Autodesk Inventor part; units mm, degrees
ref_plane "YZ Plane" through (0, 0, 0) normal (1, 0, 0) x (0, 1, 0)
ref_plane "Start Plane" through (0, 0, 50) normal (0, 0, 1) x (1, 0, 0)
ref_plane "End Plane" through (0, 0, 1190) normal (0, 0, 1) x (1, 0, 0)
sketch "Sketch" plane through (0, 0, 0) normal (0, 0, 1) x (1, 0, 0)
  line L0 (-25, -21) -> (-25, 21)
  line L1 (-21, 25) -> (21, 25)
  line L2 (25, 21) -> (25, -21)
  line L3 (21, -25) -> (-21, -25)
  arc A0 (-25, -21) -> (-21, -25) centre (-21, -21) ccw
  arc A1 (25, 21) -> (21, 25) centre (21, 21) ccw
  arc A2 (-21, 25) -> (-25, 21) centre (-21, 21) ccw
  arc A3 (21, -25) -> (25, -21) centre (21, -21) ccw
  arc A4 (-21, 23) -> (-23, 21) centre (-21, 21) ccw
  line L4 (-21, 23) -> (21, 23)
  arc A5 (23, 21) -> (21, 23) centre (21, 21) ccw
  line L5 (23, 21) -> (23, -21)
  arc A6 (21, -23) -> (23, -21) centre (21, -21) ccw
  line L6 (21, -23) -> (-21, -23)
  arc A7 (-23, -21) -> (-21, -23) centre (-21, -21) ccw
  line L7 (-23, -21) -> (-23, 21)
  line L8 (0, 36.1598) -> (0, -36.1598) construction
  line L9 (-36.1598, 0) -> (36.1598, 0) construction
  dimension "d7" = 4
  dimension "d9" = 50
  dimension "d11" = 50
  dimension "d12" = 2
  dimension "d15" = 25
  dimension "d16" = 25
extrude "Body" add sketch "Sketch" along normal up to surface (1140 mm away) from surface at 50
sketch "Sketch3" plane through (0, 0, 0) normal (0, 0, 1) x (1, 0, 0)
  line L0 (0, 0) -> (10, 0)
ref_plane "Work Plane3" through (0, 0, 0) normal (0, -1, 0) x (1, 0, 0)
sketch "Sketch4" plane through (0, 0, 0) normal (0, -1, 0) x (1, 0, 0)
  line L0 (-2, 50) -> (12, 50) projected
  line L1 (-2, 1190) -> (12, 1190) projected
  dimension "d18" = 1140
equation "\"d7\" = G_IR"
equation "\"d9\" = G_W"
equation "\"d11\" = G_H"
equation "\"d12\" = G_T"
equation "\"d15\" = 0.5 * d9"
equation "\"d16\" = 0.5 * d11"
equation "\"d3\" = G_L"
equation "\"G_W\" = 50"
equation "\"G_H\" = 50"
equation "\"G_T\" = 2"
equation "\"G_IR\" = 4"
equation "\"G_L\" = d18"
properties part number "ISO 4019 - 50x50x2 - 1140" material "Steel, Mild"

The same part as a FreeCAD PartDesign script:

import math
import FreeCAD as App
import Part
import Sketcher
Q = App.Units.Quantity

doc = App.newDocument("Part")
params = doc.addObject("Spreadsheet::Sheet", "Params")
for row, (alias, value) in enumerate([
    ("sketch1_radius", "4 mm"),
    ("sketch1_radius2", "2 mm"),
    ("pad1_length", "1140 mm"),
], start=1):
    params.set(f"A{row}", alias)
    params.set(f"B{row}", "=" + value)
    params.setAlias(f"B{row}", alias)

body = doc.addObject("PartDesign::Body", "Body")

sketch1 = body.newObject("Sketcher::SketchObject", "Sketch")
sketch1.AttachmentSupport = (doc.getObject("XY_Plane"), [""])
sketch1.MapMode = "FlatFace"
sketch1.AttachmentOffset = App.Placement(App.Vector(0, 0, 50), App.Rotation())
sketch1.addGeometry([
    Part.LineSegment(App.Vector(-25, 21, 0), App.Vector(-25, -21, 0)),
    Part.ArcOfCircle(Part.Circle(App.Vector(-21, -21, 0), App.Vector(0, 0, 1), 4), math.radians(180), math.radians(270)),
    Part.LineSegment(App.Vector(-21, -25, 0), App.Vector(21, -25, 0)),
    Part.ArcOfCircle(Part.Circle(App.Vector(21, -21, 0), App.Vector(0, 0, 1), 4), math.radians(-90), math.radians(0)),
    Part.LineSegment(App.Vector(25, -21, 0), App.Vector(25, 21, 0)),
    Part.ArcOfCircle(Part.Circle(App.Vector(21, 21, 0), App.Vector(0, 0, 1), 4), math.radians(0), math.radians(90)),
    Part.LineSegment(App.Vector(21, 25, 0), App.Vector(-21, 25, 0)),
    Part.ArcOfCircle(Part.Circle(App.Vector(-21, 21, 0), App.Vector(0, 0, 1), 4), math.radians(90), math.radians(180)),
    Part.ArcOfCircle(Part.Circle(App.Vector(-21, 21, 0), App.Vector(0, 0, 1), 2), math.radians(90), math.radians(180)),
    Part.LineSegment(App.Vector(-21, 23, 0), App.Vector(21, 23, 0)),
    Part.ArcOfCircle(Part.Circle(App.Vector(21, 21, 0), App.Vector(0, 0, 1), 2), math.radians(0), math.radians(90)),
    Part.LineSegment(App.Vector(23, 21, 0), App.Vector(23, -21, 0)),
    Part.ArcOfCircle(Part.Circle(App.Vector(21, -21, 0), App.Vector(0, 0, 1), 2), math.radians(-90), math.radians(0)),
    Part.LineSegment(App.Vector(21, -23, 0), App.Vector(-21, -23, 0)),
    Part.ArcOfCircle(Part.Circle(App.Vector(-21, -21, 0), App.Vector(0, 0, 1), 2), math.radians(180), math.radians(270)),
    Part.LineSegment(App.Vector(-23, -21, 0), App.Vector(-23, 21, 0)),
], False)
sketch1.addConstraint([
    Sketcher.Constraint("Tangent", 0, 2, 1, 1),
    Sketcher.Constraint("Tangent", 1, 2, 2, 1),
    Sketcher.Constraint("Tangent", 2, 2, 3, 1),
    Sketcher.Constraint("Tangent", 3, 2, 4, 1),
    Sketcher.Constraint("Tangent", 4, 2, 5, 1),
    Sketcher.Constraint("Tangent", 5, 2, 6, 1),
    Sketcher.Constraint("Tangent", 6, 2, 7, 1),
    Sketcher.Constraint("Tangent", 7, 2, 0, 1),
    Sketcher.Constraint("Tangent", 8, 1, 9, 1),
    Sketcher.Constraint("Tangent", 9, 2, 10, 2),
    Sketcher.Constraint("Tangent", 10, 1, 11, 1),
    Sketcher.Constraint("Tangent", 11, 2, 12, 2),
    Sketcher.Constraint("Tangent", 12, 1, 13, 1),
    Sketcher.Constraint("Tangent", 13, 2, 14, 2),
    Sketcher.Constraint("Tangent", 14, 1, 15, 1),
    Sketcher.Constraint("Tangent", 15, 2, 8, 2),
    Sketcher.Constraint("Vertical", 0),
    Sketcher.Constraint("Horizontal", 2),
    Sketcher.Constraint("Vertical", 4),
    Sketcher.Constraint("Horizontal", 6),
    Sketcher.Constraint("Horizontal", 9),
    Sketcher.Constraint("Vertical", 11),
    Sketcher.Constraint("Horizontal", 13),
    Sketcher.Constraint("Vertical", 15),
    Sketcher.Constraint("Coincident", 8, 3, 7, 3),
    Sketcher.Constraint("Coincident", 10, 3, 5, 3),
    Sketcher.Constraint("Coincident", 12, 3, 3, 3),
    Sketcher.Constraint("Equal", 1, 3),
    Sketcher.Constraint("Equal", 3, 5),
    Sketcher.Constraint("Equal", 5, 7),
    Sketcher.Constraint("Equal", 12, 14),
    Sketcher.Constraint("Symmetric", 1, 3, 5, 3, -1, 1),
    Sketcher.Constraint("Equal", 13, 0),
    Sketcher.Constraint("Radius", 1, Q("4 mm")),
    Sketcher.Constraint("Radius", 8, Q("2 mm")),
    Sketcher.Constraint("DistanceX", 0, 2, -1, 1, Q("25 mm")),
])
sketch1.setExpression("Constraints[33]", "Params.sketch1_radius")
sketch1.setExpression("Constraints[34]", "Params.sketch1_radius2")
pad1 = body.newObject("PartDesign::Pad", "Pad")
pad1.Profile = sketch1
pad1.setExpression("Length", "Params.pad1_length")

doc.recompute()
